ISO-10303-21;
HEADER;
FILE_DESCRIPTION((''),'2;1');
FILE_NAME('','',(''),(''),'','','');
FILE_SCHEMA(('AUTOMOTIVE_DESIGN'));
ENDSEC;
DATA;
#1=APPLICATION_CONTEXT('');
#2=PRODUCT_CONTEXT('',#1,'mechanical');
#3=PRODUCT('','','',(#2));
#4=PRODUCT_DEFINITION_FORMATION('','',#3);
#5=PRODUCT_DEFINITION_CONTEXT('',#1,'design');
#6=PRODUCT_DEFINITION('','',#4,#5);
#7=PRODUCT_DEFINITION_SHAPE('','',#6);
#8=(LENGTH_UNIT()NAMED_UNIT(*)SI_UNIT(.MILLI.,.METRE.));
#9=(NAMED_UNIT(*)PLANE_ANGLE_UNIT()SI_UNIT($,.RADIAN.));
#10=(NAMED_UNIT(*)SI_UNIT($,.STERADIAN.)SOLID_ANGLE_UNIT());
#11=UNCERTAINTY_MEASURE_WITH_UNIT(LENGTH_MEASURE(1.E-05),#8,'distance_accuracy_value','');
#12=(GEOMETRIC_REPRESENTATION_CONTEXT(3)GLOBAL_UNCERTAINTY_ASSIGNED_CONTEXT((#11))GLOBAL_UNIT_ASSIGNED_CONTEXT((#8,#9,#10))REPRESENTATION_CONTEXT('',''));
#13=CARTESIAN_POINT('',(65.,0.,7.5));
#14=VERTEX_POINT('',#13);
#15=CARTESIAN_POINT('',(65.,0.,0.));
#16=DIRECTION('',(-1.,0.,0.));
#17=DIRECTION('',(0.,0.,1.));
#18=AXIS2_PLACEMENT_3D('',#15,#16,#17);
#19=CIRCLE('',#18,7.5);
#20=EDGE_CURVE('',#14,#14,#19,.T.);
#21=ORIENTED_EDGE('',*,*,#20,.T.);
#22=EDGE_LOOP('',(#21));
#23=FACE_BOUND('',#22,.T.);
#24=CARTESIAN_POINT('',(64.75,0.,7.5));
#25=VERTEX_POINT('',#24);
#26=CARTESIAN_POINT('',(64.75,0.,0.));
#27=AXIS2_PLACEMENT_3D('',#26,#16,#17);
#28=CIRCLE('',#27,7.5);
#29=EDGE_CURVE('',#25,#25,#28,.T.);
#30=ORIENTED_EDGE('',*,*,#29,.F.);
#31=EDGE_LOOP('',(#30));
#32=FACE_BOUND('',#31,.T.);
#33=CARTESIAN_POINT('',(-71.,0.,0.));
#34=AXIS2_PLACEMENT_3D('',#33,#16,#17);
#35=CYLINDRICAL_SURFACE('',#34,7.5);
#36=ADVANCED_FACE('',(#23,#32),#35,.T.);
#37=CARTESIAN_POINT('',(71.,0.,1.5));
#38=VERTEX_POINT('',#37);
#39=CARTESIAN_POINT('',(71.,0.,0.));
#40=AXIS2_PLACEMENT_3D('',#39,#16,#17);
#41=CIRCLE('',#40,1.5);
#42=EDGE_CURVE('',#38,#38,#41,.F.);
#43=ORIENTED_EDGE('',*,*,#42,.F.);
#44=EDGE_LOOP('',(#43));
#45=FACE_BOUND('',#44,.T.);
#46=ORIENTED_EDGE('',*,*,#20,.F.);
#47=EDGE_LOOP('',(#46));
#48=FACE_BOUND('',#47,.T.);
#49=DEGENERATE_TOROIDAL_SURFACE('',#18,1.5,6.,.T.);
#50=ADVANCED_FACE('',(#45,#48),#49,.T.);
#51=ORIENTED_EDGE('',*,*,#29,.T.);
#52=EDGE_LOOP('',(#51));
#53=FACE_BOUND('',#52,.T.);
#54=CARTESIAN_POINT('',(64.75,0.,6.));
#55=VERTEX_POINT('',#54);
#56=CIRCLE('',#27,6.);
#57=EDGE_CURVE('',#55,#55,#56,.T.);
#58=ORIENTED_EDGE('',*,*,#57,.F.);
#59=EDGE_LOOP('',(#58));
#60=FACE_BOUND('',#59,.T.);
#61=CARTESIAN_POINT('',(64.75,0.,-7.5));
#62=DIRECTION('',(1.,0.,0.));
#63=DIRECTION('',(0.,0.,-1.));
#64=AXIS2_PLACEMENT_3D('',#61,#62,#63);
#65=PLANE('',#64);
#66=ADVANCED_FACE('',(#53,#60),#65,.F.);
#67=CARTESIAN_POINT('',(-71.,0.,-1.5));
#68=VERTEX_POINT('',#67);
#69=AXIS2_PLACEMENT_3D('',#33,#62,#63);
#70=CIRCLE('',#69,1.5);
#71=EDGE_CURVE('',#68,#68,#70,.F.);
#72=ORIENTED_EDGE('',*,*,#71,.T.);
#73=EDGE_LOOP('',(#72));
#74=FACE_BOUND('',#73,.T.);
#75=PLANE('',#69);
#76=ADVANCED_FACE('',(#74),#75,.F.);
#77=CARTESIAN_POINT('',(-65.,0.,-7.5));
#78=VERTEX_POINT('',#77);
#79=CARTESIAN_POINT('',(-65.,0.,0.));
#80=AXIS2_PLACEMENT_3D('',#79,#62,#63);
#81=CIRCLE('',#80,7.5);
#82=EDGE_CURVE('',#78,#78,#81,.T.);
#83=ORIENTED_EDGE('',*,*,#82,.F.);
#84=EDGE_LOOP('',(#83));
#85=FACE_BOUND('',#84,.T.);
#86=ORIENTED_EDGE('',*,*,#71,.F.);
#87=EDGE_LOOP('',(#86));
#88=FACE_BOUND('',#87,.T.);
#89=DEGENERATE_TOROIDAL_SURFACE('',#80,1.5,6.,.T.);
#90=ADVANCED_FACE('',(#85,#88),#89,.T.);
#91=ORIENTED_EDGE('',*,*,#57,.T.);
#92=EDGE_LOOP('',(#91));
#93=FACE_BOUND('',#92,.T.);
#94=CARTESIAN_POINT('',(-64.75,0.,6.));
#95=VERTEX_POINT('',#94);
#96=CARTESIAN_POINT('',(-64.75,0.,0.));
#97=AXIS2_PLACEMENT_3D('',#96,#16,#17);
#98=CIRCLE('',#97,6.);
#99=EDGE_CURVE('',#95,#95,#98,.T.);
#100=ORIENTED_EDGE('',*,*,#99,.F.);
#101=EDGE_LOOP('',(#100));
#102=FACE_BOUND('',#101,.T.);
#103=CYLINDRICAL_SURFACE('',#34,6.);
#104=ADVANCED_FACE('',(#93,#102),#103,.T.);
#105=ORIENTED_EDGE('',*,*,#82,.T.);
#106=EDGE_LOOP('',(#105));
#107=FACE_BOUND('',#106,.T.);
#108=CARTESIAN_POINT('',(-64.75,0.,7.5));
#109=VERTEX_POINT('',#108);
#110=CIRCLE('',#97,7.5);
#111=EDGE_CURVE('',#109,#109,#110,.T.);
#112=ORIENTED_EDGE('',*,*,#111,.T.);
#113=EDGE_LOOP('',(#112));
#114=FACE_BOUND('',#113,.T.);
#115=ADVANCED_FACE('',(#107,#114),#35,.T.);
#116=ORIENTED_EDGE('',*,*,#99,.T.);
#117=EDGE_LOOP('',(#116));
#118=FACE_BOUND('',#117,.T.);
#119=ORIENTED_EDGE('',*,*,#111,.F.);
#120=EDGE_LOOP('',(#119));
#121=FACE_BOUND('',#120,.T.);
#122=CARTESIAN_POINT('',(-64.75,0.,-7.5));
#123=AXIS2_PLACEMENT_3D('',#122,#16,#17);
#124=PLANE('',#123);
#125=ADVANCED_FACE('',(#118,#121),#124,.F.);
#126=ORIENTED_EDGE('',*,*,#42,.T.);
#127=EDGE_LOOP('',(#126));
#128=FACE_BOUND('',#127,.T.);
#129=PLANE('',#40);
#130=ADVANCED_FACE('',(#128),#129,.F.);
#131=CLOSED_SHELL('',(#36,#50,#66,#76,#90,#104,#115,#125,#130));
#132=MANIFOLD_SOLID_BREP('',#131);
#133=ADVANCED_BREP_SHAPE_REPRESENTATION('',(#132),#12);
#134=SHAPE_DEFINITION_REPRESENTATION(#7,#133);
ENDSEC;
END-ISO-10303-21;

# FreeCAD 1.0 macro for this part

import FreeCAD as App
import Part
import Sketcher
from FreeCAD import Vector


def edges_at(feature, points):
    """Names of the edges that pass closest to the given points."""
    edges = feature.Shape.Edges
    near = lambda p: min(range(len(edges)), key=lambda i: edges[i].distToShape(Part.Vertex(*p))[0])
    return sorted({f"Edge{near(p) + 1}" for p in points})


def add_polygon(sketch, points):
    """Adds a closed chain of lines whose ends are joined by coincident constraints."""
    first, n = sketch.GeometryCount, len(points)
    for a, b in zip(points, points[1:] + points[:1]):
        sketch.addGeometry(Part.LineSegment(App.Vector(*a, 0), App.Vector(*b, 0)), False)
    for i in range(n):
        sketch.addConstraint(Sketcher.Constraint("Coincident", first + i, 2, first + (i + 1) % n, 1))

doc = App.newDocument("Part")
body = doc.addObject("PartDesign::Body", "Body")

sketch1 = body.newObject("Sketcher::SketchObject", "Sketch")
sketch1.AttachmentSupport = (doc.getObject("XZ_Plane"), [""])
sketch1.MapMode = "FlatFace"
add_polygon(sketch1, [(-71, -7.5), (-71, 0), (71, 0), (71, -7.5), (64.8, -7.5), (64.8, -6), (-64.8, -6), (-64.8, -7.5)])
sketch1.addConstraint([
    Sketcher.Constraint("Vertical", 0),
    Sketcher.Constraint("Horizontal", 1),
    Sketcher.Constraint("Vertical", 2),
    Sketcher.Constraint("Horizontal", 3),
    Sketcher.Constraint("Vertical", 4),
    Sketcher.Constraint("Horizontal", 5),
    Sketcher.Constraint("Vertical", 6),
    Sketcher.Constraint("Horizontal", 7),
    Sketcher.Constraint("Symmetric", 0, 2, 1, 2, -1, 1),
    Sketcher.Constraint("Symmetric", 3, 2, 6, 2, -2),
    Sketcher.Constraint("DistanceX", 1, 1, 1, 2, 142.0),
    Sketcher.Constraint("DistanceX", 5, 2, 5, 1, 129.5),
    Sketcher.Constraint("DistanceY", 0, 1, 0, 2, 7.5),
    Sketcher.Constraint("DistanceY", 4, 1, 4, 2, 1.5),
])
revolution = body.newObject("PartDesign::Revolution", "Revolution")
revolution.Profile = sketch1
revolution.ReferenceAxis = (sketch1, ["H_Axis"])
revolution.Angle = 360
doc.recompute()

fillet = body.newObject("PartDesign::Fillet", "Fillet")
fillet.Base = (revolution, edges_at(revolution, [(-71, 0, 7.5), (71, 0, 7.5)]))
fillet.Radius = 6

doc.recompute()
